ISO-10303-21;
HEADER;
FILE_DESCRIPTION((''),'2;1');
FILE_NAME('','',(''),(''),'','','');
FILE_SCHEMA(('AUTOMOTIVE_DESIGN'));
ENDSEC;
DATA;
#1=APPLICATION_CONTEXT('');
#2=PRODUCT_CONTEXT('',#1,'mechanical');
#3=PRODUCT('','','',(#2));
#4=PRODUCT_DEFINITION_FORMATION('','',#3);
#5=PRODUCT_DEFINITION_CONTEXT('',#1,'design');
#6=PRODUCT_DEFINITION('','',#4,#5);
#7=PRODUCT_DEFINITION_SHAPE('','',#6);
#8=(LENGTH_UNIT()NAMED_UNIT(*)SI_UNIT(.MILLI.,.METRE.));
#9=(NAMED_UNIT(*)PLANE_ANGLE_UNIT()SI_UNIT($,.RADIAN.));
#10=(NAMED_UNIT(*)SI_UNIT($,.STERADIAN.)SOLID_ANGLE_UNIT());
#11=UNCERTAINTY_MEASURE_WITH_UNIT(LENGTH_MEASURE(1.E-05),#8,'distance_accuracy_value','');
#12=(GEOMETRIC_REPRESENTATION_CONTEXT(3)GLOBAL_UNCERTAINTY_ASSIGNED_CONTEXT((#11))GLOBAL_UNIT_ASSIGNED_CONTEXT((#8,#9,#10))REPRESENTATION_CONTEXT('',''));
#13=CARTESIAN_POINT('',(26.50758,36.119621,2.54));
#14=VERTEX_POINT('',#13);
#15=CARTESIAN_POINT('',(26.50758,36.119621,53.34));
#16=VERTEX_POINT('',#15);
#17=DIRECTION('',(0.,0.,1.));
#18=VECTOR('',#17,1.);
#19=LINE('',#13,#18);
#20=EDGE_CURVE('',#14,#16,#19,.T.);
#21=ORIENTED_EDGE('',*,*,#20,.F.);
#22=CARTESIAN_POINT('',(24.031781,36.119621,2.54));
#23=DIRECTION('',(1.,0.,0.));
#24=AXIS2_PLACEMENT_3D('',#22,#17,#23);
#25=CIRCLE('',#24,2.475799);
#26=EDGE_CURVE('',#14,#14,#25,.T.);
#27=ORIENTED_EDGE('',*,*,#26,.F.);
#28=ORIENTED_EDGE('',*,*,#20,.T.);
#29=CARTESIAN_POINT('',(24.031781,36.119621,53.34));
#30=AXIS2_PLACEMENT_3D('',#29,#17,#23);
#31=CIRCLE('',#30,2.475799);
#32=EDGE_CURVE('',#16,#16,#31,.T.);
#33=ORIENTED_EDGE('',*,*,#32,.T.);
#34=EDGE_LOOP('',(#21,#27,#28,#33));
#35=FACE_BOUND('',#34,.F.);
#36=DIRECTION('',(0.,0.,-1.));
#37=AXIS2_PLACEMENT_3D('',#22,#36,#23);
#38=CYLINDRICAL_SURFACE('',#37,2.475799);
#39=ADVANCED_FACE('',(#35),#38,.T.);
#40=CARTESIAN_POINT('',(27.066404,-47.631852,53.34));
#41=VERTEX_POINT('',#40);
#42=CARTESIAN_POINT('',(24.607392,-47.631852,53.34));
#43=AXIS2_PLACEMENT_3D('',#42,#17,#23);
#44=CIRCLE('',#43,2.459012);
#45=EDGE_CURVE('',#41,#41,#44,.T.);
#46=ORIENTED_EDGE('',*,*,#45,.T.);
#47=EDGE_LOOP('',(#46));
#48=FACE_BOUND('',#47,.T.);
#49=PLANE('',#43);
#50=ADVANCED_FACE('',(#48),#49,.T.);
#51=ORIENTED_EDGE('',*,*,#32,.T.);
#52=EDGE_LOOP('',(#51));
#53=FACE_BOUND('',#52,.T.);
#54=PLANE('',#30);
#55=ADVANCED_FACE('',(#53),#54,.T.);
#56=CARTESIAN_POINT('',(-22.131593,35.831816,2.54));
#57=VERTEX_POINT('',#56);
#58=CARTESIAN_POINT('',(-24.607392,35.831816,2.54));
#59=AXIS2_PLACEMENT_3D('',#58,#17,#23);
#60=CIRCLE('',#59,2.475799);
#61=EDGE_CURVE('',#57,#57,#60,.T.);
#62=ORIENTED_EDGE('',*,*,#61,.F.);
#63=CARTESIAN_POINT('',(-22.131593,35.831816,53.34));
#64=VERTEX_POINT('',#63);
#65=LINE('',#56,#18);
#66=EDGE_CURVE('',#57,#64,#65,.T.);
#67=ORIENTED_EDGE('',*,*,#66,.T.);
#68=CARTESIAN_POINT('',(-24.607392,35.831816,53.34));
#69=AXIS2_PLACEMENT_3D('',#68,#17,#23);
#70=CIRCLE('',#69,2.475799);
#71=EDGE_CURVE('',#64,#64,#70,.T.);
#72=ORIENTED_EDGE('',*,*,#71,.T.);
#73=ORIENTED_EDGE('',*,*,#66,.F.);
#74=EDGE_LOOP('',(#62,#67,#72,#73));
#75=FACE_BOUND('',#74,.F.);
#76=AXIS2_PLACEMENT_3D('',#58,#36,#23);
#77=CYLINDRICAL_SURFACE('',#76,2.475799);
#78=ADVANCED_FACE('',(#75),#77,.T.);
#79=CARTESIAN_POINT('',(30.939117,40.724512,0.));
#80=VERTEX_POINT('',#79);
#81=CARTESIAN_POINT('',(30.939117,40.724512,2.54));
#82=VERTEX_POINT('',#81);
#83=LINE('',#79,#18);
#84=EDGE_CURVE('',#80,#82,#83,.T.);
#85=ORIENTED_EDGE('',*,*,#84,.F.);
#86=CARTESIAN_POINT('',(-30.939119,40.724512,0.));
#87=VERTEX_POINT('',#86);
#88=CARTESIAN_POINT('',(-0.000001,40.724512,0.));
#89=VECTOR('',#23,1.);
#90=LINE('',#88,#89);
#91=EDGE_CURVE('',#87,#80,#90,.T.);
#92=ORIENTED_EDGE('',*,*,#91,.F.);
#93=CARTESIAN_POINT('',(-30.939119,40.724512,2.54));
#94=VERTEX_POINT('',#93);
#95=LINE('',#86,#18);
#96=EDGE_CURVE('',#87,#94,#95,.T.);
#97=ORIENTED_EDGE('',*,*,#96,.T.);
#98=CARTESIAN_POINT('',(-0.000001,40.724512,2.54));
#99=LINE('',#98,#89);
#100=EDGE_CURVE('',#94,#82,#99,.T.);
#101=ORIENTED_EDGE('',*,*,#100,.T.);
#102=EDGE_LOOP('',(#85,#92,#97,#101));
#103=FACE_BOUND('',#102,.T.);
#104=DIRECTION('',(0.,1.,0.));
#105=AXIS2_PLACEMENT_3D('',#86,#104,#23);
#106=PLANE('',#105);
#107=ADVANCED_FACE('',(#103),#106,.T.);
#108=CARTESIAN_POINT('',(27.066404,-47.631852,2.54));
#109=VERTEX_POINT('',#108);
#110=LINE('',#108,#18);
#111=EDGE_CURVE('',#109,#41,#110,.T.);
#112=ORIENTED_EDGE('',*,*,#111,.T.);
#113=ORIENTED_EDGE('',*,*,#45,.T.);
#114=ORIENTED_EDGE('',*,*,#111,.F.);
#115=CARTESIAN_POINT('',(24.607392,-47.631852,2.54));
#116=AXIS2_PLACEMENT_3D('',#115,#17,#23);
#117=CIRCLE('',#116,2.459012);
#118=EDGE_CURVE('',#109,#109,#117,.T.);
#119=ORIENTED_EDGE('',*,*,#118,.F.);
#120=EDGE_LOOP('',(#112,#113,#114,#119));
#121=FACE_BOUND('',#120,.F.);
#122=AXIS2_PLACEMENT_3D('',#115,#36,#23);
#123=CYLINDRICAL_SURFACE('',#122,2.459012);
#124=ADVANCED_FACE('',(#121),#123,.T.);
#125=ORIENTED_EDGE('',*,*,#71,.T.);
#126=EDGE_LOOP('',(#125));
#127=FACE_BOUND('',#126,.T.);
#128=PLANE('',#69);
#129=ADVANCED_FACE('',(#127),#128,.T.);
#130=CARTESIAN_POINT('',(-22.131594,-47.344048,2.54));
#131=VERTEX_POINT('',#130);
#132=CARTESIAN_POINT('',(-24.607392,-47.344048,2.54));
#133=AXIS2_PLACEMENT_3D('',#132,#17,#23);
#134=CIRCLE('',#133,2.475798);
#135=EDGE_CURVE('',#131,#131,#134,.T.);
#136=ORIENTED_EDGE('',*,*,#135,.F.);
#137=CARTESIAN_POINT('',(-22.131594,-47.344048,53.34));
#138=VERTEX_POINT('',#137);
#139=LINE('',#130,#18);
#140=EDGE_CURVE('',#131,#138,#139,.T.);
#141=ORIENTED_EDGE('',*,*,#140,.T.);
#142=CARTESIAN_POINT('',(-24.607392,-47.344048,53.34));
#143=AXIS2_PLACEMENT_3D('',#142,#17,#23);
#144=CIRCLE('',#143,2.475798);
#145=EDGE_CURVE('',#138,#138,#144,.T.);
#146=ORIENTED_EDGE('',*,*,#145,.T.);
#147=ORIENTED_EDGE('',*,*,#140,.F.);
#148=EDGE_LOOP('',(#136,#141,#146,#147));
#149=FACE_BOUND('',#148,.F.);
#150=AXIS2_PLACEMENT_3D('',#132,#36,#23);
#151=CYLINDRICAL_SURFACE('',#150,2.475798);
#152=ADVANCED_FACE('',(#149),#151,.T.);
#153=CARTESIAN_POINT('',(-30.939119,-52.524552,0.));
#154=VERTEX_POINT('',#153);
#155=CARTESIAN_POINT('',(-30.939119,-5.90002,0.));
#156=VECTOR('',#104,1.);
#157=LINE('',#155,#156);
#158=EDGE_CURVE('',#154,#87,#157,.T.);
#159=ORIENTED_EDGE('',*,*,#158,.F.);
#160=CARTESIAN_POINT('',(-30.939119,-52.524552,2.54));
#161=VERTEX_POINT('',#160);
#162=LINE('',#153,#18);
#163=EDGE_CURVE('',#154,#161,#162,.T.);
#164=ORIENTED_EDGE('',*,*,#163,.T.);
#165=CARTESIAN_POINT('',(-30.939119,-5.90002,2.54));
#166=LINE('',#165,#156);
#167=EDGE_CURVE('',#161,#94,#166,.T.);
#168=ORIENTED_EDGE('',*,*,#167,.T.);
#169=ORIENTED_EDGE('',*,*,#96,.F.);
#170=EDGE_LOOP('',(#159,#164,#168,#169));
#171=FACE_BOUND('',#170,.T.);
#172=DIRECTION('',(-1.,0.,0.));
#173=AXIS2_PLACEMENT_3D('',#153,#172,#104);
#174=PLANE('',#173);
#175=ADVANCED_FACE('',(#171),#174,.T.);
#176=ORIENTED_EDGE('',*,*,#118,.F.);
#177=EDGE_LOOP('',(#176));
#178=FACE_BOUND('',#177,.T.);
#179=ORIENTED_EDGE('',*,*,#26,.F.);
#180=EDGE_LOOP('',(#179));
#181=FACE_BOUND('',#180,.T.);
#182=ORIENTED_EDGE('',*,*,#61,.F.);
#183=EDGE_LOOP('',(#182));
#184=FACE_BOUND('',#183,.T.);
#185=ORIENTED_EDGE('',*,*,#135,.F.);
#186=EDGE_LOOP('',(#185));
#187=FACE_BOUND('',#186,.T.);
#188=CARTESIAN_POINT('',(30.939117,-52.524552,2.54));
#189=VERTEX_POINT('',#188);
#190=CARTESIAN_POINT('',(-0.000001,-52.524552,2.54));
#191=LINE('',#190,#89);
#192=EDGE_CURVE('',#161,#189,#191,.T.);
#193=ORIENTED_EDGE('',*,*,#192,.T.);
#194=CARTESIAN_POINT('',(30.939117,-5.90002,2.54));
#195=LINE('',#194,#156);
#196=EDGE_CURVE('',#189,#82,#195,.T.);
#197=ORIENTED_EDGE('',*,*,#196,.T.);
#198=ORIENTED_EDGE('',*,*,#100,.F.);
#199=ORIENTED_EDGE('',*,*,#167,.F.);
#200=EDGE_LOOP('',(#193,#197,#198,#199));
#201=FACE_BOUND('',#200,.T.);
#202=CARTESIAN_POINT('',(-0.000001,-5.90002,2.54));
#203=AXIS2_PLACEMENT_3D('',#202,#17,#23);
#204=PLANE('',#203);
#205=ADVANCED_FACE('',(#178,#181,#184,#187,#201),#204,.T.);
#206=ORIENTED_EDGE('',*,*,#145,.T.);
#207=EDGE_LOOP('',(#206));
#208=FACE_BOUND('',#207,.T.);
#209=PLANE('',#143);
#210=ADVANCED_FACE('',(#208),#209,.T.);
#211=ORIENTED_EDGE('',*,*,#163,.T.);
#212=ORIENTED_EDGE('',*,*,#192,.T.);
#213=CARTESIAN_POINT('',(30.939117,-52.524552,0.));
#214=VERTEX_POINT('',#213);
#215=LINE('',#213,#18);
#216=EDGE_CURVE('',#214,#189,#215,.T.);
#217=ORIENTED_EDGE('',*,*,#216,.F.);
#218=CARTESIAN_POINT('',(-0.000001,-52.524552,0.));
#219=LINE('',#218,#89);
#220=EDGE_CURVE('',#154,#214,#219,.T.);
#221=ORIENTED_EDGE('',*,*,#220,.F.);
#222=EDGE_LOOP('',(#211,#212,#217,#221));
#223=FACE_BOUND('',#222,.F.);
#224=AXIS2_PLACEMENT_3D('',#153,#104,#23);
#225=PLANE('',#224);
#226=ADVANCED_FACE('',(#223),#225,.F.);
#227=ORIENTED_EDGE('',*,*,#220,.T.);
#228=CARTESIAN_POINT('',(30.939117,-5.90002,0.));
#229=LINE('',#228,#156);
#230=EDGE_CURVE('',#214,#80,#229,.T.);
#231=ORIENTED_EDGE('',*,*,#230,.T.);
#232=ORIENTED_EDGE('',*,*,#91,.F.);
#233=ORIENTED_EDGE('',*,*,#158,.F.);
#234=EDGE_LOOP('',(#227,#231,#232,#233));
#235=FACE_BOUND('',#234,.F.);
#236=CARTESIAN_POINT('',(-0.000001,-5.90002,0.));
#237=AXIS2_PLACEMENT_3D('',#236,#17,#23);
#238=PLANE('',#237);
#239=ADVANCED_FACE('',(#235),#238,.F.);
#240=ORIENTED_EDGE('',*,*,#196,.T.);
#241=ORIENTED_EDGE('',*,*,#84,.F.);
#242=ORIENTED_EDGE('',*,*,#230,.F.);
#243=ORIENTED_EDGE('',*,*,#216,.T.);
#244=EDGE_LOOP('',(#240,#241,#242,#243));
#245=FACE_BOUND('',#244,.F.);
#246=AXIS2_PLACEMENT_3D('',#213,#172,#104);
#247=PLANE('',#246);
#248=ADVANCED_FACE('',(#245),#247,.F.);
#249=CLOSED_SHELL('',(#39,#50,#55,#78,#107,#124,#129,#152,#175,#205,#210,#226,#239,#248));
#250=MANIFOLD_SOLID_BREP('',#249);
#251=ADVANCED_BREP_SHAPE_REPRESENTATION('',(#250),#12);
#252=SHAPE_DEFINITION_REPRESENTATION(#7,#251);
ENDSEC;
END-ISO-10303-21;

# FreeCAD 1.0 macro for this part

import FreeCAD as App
import Part
import Sketcher
Q = App.Units.Quantity

doc = App.newDocument("Part")
body = doc.addObject("PartDesign::Body", "Body")

# Sketch on XY plane
sketch1 = body.newObject("Sketcher::SketchObject", "Sketch")
sketch1.AttachmentSupport = (doc.getObject("XY_Plane"), [""])
sketch1.MapMode = "FlatFace"
sketch1.addGeometry(Part.LineSegment(App.Vector(-31, 41, 0), App.Vector(-31, -53, 0)), False)
sketch1.addGeometry(Part.LineSegment(App.Vector(-31, -53, 0), App.Vector(31, -53, 0)), False)
sketch1.addGeometry(Part.LineSegment(App.Vector(31, -53, 0), App.Vector(31, 41, 0)), False)
sketch1.addGeometry(Part.LineSegment(App.Vector(31, 41, 0), App.Vector(-31, 41, 0)), False)
sketch1.addConstraint(Sketcher.Constraint("Coincident", 0, 2, 1, 1))
sketch1.addConstraint(Sketcher.Constraint("Coincident", 1, 2, 2, 1))
sketch1.addConstraint(Sketcher.Constraint("Coincident", 2, 2, 3, 1))
sketch1.addConstraint(Sketcher.Constraint("Coincident", 3, 2, 0, 1))
sketch1.addConstraint(Sketcher.Constraint("Vertical", 0))
sketch1.addConstraint(Sketcher.Constraint("Horizontal", 1))
sketch1.addConstraint(Sketcher.Constraint("Vertical", 2))
sketch1.addConstraint(Sketcher.Constraint("Horizontal", 3))
sketch1.addConstraint(Sketcher.Constraint("DistanceX", 1, 1, 1, 2, 61.878236))
sketch1.addConstraint(Sketcher.Constraint("DistanceY", 0, 2, 0, 1, 93.249064))
sketch1.addConstraint(Sketcher.Constraint("DistanceX", 0, 2, -1, 1, 30.939119))
sketch1.addConstraint(Sketcher.Constraint("DistanceY", -1, 1, 2, 2, 40.724512))
pad1 = body.newObject("PartDesign::Pad", "Pad")
pad1.Profile = sketch1
pad1.Length = Q("0.1 in")

# Sketch on XY plane
sketch2 = body.newObject("Sketcher::SketchObject", "Sketch001")
sketch2.AttachmentSupport = (doc.getObject("XY_Plane"), [""])
sketch2.MapMode = "FlatFace"
sketch2.addGeometry(Part.Circle(App.Vector(-24.3, -47.6, 0), App.Vector(0, 0, 1), 3.4), False)
sketch2.addConstraint(Sketcher.Constraint("Diameter", 0, 6.712726))
sketch2.addConstraint(Sketcher.Constraint("DistanceX", 0, 3, -1, 1, 24.319587))
sketch2.addConstraint(Sketcher.Constraint("DistanceY", 0, 3, -1, 1, 47.631852))
pocket1 = body.newObject("PartDesign::Pocket", "Pocket")
pocket1.Profile = sketch2
pocket1.Length = Q("1.35 in")

# Sketch on XY plane
sketch3 = body.newObject("Sketcher::SketchObject", "Sketch002")
sketch3.AttachmentSupport = (doc.getObject("XY_Plane"), [""])
sketch3.MapMode = "FlatFace"
sketch3.AttachmentOffset = App.Placement(App.Vector(0, 0, 0.1 * 25.4), App.Rotation())
sketch3.addGeometry(Part.Circle(App.Vector(-24.6, 35.8, 0), App.Vector(0, 0, 1), 2.5), False)
sketch3.addConstraint(Sketcher.Constraint("Diameter", 0, 4.951598))
sketch3.addConstraint(Sketcher.Constraint("DistanceX", 0, 3, -1, 1, 24.607392))
sketch3.addConstraint(Sketcher.Constraint("DistanceY", -1, 1, 0, 3, 35.831816))
pad2 = body.newObject("PartDesign::Pad", "Pad001")
pad2.Profile = sketch3
pad2.Length = Q("2 in")

# Sketch on XY plane
sketch4 = body.newObject("Sketcher::SketchObject", "Sketch003")
sketch4.AttachmentSupport = (doc.getObject("XY_Plane"), [""])
sketch4.MapMode = "FlatFace"
sketch4.AttachmentOffset = App.Placement(App.Vector(0, 0, 0.1 * 25.4), App.Rotation())
sketch4.addGeometry(Part.Circle(App.Vector(24, 36.1, 0), App.Vector(0, 0, 1), 2.5), False)
sketch4.addConstraint(Sketcher.Constraint("Diameter", 0, 4.951598))
sketch4.addConstraint(Sketcher.Constraint("DistanceX", -1, 1, 0, 3, 24.031781))
sketch4.addConstraint(Sketcher.Constraint("DistanceY", -1, 1, 0, 3, 36.119621))
pad3 = body.newObject("PartDesign::Pad", "Pad002")
pad3.Profile = sketch4
pad3.Length = Q("2 in")

# Sketch on XY plane
sketch5 = body.newObject("Sketcher::SketchObject", "Sketch004")
sketch5.AttachmentSupport = (doc.getObject("XY_Plane"), [""])
sketch5.MapMode = "FlatFace"
sketch5.AttachmentOffset = App.Placement(App.Vector(0, 0, 0.1 * 25.4), App.Rotation())
sketch5.addGeometry(Part.Circle(App.Vector(-24.6, -47.3, 0), App.Vector(0, 0, 1), 2.5), False)
sketch5.addConstraint(Sketcher.Constraint("Diameter", 0, 4.951596))
sketch5.addConstraint(Sketcher.Constraint("DistanceX", 0, 3, -1, 1, 24.607392))
sketch5.addConstraint(Sketcher.Constraint("DistanceY", 0, 3, -1, 1, 47.344048))
pad4 = body.newObject("PartDesign::Pad", "Pad003")
pad4.Profile = sketch5
pad4.Length = Q("2 in")

# Sketch on XY plane
sketch6 = body.newObject("Sketcher::SketchObject", "Sketch005")
sketch6.AttachmentSupport = (doc.getObject("XY_Plane"), [""])
sketch6.MapMode = "FlatFace"
sketch6.AttachmentOffset = App.Placement(App.Vector(0, 0, 0.1 * 25.4), App.Rotation())
sketch6.addGeometry(Part.Circle(App.Vector(24.6, -47.6, 0), App.Vector(0, 0, 1), 2.5), False)
sketch6.addConstraint(Sketcher.Constraint("Diameter", 0, 4.918024))
sketch6.addConstraint(Sketcher.Constraint("DistanceX", -1, 1, 0, 3, 24.607392))
sketch6.addConstraint(Sketcher.Constraint("DistanceY", 0, 3, -1, 1, 47.631852))
pad5 = body.newObject("PartDesign::Pad", "Pad004")
pad5.Profile = sketch6
pad5.Length = Q("2 in")

doc.recompute()
